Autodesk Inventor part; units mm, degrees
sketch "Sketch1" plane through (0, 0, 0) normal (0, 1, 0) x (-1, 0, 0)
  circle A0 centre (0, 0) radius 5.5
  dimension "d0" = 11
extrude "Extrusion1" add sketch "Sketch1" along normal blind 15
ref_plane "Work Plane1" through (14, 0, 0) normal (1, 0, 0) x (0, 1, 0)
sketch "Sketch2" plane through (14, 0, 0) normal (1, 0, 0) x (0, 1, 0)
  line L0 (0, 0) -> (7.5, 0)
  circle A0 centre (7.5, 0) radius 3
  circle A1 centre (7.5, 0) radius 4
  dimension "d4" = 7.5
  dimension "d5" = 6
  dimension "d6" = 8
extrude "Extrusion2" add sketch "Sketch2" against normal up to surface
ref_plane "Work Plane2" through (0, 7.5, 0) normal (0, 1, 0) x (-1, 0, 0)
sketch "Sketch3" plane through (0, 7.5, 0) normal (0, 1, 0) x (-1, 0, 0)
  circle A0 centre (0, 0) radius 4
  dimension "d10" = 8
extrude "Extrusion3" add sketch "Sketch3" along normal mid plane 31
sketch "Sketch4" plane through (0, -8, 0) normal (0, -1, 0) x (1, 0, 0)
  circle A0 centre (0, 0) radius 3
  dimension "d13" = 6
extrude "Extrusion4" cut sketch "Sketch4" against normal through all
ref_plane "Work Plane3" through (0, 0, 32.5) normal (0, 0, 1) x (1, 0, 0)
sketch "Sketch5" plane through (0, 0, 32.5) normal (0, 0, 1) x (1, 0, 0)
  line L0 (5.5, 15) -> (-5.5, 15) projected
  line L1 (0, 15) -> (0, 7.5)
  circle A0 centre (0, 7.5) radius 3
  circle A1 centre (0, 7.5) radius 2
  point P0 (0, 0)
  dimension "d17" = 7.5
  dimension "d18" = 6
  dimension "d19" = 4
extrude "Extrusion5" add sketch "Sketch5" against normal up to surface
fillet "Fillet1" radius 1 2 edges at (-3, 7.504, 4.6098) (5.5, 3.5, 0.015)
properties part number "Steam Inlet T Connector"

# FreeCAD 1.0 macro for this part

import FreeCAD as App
import Part
import Sketcher

V = App.Vector


def edges_at(feature, points):
    """Names of the edges that pass closest to the given points."""
    edges = feature.Shape.Edges
    near = lambda p: min(range(len(edges)), key=lambda i: edges[i].distToShape(Part.Vertex(*p))[0])
    return sorted({f"Edge{near(p) + 1}" for p in points})

doc = App.newDocument("Part")
body = doc.addObject("PartDesign::Body", "Body")

sketch1 = body.newObject("Sketcher::SketchObject", "Sketch")
sketch1.AttachmentSupport = (doc.getObject("XZ_Plane"), [""])
sketch1.MapMode = "FlatFace"
sketch1.addGeometry(Part.Circle(V(0, 0, 0), V(0, 0, 1), 5.5), False)
sketch1.addConstraint(Sketcher.Constraint("Coincident", 0, 3, -1, 1))
sketch1.addConstraint(Sketcher.Constraint("Diameter", 0, 11.0))
pad1 = body.newObject("PartDesign::Pad", "Pad")
pad1.Profile = sketch1
pad1.Length = 15
pad1.Reversed = True

sketch2 = body.newObject("Sketcher::SketchObject", "Sketch001")
sketch2.AttachmentSupport = (doc.getObject("YZ_Plane"), [""])
sketch2.MapMode = "FlatFace"
sketch2.AttachmentOffset = App.Placement(V(0, 0, 14), App.Rotation())
sketch2.addGeometry(Part.Circle(V(7.5, 0, 0), V(0, 0, 1), 4), False)
sketch2.addGeometry(Part.Circle(V(7.5, 0, 0), V(0, 0, 1), 3), False)
sketch2.addConstraint(Sketcher.Constraint("Coincident", 1, 3, 0, 3))
sketch2.addConstraint(Sketcher.Constraint("PointOnObject", 0, 3, -1))
sketch2.addConstraint(Sketcher.Constraint("Diameter", 0, 8.0))
sketch2.addConstraint(Sketcher.Constraint("Diameter", 1, 6.0))
sketch2.addConstraint(Sketcher.Constraint("DistanceX", -1, 1, 0, 3, 7.5))
pad2 = body.newObject("PartDesign::Pad", "Pad001")
pad2.Profile = sketch2
pad2.Type = "UpToFirst"
pad2.Reversed = True

sketch3 = body.newObject("Sketcher::SketchObject", "Sketch002")
sketch3.AttachmentSupport = (doc.getObject("XZ_Plane"), [""])
sketch3.MapMode = "FlatFace"
sketch3.AttachmentOffset = App.Placement(V(0, 0, -7.5), App.Rotation())
sketch3.addGeometry(Part.Circle(V(0, 0, 0), V(0, 0, 1), 4), False)
sketch3.addConstraint(Sketcher.Constraint("Coincident", 0, 3, -1, 1))
sketch3.addConstraint(Sketcher.Constraint("Diameter", 0, 8.0))
pad3 = body.newObject("PartDesign::Pad", "Pad002")
pad3.Profile = sketch3
pad3.Length = 31
pad3.Midplane = True

sketch4 = body.newObject("Sketcher::SketchObject", "Sketch003")
sketch4.AttachmentSupport = (doc.getObject("XZ_Plane"), [""])
sketch4.MapMode = "FlatFace"
sketch4.AttachmentOffset = App.Placement(V(0, 0, 8), App.Rotation())
sketch4.addGeometry(Part.Circle(V(0, 0, 0), V(0, 0, 1), 3), False)
sketch4.addConstraint(Sketcher.Constraint("Coincident", 0, 3, -1, 1))
sketch4.addConstraint(Sketcher.Constraint("Diameter", 0, 6.0))
pocket1 = body.newObject("PartDesign::Pocket", "Pocket")
pocket1.Profile = sketch4
pocket1.Type = "ThroughAll"

sketch5 = body.newObject("Sketcher::SketchObject", "Sketch004")
sketch5.AttachmentSupport = (doc.getObject("XY_Plane"), [""])
sketch5.MapMode = "FlatFace"
sketch5.AttachmentOffset = App.Placement(V(0, 0, 32.5), App.Rotation())
sketch5.addGeometry(Part.Circle(V(0, 7.5, 0), V(0, 0, 1), 3), False)
sketch5.addGeometry(Part.Circle(V(0, 7.5, 0), V(0, 0, 1), 2), False)
sketch5.addConstraint(Sketcher.Constraint("Coincident", 1, 3, 0, 3))
sketch5.addConstraint(Sketcher.Constraint("PointOnObject", 0, 3, -2))
sketch5.addConstraint(Sketcher.Constraint("Diameter", 0, 6.0))
sketch5.addConstraint(Sketcher.Constraint("Diameter", 1, 4.0))
sketch5.addConstraint(Sketcher.Constraint("DistanceY", -1, 1, 0, 3, 7.5))
pad4 = body.newObject("PartDesign::Pad", "Pad003")
pad4.Profile = sketch5
pad4.Type = "UpToFirst"
pad4.Reversed = True
doc.recompute()

fillet = body.newObject("PartDesign::Fillet", "Fillet")
fillet.Base = (pad4, edges_at(pad4, [(-3, 7.504, 4.61), (5.5, 3.5, 0.015)]))
fillet.Radius = 1

doc.recompute()
